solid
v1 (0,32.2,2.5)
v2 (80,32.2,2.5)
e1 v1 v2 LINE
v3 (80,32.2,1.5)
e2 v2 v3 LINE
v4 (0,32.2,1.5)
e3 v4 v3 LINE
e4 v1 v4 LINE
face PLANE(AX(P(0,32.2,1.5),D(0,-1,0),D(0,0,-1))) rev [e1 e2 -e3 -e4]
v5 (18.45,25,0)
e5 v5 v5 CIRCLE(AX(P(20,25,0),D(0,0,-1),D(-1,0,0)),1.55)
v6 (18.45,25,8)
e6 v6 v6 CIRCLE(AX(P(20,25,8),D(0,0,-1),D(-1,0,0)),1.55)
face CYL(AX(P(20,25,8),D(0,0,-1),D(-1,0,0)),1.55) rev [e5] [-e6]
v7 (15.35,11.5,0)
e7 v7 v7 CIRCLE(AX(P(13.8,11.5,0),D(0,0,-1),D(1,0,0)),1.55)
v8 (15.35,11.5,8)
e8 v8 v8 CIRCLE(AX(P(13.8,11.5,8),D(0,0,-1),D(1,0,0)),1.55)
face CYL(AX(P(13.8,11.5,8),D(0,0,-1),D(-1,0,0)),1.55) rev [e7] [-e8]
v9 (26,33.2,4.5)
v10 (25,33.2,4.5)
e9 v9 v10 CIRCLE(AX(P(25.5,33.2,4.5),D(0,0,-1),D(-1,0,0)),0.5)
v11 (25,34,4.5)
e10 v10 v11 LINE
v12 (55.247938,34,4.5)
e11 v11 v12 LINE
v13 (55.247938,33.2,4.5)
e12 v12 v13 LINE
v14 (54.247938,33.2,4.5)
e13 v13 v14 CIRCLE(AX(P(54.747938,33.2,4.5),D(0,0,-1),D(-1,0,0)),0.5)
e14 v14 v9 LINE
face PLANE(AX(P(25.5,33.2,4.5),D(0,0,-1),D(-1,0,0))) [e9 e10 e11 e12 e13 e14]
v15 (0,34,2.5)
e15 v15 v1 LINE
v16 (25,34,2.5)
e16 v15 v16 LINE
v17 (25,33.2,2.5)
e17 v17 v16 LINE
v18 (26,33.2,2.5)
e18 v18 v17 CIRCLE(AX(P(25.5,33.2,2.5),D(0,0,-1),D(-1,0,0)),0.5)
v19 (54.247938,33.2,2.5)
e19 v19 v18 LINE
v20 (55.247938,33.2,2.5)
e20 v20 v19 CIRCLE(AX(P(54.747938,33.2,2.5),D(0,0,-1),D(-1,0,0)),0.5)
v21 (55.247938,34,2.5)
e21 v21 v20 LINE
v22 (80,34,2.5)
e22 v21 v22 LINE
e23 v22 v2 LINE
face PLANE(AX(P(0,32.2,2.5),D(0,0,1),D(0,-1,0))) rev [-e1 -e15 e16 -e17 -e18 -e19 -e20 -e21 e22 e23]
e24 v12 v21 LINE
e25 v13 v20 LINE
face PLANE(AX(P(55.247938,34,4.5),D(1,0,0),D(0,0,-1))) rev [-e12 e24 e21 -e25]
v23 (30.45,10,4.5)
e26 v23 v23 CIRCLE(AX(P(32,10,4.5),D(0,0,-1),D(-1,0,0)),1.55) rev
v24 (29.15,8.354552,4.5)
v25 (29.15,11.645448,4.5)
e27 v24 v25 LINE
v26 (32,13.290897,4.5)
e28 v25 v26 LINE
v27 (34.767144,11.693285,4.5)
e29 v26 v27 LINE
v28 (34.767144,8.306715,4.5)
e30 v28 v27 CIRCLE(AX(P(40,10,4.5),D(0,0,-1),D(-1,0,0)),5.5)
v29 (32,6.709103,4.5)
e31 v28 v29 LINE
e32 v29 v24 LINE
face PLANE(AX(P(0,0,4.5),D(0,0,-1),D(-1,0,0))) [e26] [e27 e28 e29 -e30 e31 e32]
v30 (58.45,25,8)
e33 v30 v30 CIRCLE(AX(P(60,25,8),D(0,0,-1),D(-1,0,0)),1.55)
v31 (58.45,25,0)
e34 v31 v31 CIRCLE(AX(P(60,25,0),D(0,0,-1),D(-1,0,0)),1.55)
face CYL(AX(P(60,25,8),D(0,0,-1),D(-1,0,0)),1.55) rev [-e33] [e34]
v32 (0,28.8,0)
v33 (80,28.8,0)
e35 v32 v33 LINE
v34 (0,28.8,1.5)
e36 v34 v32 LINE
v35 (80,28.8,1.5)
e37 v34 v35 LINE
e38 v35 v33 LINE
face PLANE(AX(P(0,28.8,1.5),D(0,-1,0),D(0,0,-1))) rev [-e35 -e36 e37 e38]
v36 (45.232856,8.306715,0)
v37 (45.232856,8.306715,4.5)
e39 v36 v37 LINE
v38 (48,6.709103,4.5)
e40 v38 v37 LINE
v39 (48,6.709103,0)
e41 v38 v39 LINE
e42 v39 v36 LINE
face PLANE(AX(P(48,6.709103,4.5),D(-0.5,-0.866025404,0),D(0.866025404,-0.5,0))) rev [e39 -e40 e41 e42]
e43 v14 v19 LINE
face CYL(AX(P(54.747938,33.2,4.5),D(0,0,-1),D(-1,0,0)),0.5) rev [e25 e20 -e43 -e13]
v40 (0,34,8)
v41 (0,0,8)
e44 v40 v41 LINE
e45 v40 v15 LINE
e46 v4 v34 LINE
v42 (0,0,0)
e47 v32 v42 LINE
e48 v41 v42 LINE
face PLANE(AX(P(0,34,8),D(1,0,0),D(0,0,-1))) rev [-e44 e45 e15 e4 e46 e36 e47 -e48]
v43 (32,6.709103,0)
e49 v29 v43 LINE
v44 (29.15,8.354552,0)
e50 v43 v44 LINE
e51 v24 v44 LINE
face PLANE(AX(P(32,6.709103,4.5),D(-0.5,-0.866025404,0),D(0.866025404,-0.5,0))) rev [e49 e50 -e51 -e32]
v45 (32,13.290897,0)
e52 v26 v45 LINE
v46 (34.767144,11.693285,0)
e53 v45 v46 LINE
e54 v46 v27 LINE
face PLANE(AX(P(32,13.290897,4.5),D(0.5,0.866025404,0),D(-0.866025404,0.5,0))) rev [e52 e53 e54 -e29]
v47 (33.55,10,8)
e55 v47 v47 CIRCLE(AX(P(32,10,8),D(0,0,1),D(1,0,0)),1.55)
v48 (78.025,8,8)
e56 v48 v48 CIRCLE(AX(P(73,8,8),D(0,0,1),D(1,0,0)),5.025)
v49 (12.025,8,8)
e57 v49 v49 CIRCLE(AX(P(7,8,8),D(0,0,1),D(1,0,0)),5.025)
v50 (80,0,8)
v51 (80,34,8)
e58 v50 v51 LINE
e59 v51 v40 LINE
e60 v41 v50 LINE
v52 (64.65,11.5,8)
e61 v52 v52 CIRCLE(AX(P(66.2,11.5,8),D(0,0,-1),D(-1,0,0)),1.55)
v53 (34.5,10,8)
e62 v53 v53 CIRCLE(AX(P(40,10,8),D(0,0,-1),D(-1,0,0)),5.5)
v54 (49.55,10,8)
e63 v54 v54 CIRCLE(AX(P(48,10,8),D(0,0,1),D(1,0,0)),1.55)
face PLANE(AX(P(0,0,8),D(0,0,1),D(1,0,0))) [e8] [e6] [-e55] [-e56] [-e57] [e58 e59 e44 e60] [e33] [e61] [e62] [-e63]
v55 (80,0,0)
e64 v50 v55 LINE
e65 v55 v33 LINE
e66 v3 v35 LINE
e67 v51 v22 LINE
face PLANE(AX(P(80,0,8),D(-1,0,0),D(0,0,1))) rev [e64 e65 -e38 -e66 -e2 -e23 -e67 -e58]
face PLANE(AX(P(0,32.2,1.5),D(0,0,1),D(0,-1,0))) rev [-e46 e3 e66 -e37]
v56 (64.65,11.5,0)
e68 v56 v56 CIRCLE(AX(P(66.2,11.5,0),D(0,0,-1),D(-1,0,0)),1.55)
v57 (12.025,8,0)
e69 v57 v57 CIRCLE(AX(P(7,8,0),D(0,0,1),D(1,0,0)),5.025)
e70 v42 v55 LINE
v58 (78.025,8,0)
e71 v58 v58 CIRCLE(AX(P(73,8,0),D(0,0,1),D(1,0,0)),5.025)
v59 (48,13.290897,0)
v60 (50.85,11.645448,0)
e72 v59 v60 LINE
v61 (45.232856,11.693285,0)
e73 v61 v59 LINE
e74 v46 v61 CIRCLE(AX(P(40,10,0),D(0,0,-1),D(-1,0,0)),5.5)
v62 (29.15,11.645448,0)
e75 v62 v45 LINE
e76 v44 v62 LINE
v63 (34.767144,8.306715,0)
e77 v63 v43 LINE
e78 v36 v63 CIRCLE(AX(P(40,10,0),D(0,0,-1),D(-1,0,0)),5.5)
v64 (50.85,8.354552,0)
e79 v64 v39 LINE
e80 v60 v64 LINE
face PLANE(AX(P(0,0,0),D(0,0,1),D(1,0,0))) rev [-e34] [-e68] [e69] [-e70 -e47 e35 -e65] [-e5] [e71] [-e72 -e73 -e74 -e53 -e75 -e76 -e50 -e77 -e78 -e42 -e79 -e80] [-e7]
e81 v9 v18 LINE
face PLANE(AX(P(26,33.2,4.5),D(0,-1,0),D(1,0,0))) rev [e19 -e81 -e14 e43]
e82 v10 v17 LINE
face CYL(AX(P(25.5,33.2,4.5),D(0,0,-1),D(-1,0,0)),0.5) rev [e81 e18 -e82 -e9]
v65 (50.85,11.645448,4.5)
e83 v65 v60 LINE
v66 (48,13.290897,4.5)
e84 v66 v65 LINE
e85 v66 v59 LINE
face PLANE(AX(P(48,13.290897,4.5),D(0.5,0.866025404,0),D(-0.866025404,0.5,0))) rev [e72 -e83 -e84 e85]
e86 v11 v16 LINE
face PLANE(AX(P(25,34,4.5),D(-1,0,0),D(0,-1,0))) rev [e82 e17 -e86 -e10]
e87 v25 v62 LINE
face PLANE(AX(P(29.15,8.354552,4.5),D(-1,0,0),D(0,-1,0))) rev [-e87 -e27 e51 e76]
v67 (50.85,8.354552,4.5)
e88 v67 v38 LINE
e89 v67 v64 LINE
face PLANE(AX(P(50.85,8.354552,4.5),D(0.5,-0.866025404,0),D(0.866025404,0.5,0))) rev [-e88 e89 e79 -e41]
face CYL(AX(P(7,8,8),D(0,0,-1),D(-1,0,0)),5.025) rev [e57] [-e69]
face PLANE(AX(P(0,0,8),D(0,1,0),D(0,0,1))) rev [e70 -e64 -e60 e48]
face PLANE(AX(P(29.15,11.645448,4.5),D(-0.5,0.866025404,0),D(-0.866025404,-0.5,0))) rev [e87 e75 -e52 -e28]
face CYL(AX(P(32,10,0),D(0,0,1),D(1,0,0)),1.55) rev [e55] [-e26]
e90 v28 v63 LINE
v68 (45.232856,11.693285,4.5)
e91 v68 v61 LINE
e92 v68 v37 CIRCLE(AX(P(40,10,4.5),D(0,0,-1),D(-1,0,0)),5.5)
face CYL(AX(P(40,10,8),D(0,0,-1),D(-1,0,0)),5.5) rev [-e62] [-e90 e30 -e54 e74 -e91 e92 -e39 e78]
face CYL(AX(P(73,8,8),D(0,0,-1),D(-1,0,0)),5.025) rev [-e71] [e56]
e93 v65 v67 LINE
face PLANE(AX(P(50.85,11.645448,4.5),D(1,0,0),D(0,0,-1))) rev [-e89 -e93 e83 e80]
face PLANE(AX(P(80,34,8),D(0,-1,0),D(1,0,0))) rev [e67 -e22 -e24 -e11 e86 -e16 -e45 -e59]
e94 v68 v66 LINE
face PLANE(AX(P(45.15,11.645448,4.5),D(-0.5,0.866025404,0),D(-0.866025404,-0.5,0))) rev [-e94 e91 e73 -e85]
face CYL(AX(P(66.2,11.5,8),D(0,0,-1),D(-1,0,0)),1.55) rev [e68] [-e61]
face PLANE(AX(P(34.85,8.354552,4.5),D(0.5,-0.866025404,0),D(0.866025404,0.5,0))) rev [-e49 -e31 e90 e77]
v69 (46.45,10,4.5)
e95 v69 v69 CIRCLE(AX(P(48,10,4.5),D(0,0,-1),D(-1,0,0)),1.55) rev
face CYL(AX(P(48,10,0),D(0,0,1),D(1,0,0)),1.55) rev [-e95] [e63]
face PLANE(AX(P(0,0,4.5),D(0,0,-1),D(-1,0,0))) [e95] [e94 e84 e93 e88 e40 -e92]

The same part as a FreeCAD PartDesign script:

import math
import FreeCAD as App
import Part
import Sketcher
from FreeCAD import Vector
Q = App.Units.Quantity

doc = App.newDocument("Part")
body = doc.addObject("PartDesign::Body", "Body")

sketch1 = body.newObject("Sketcher::SketchObject", "Sketch")
sketch1.AttachmentSupport = (doc.getObject("XY_Plane"), [""])
sketch1.MapMode = "FlatFace"
sketch1.addGeometry([
    Part.LineSegment(Vector(0, 34, 0), Vector(0, 0, 0)),
    Part.LineSegment(Vector(0, 0, 0), Vector(80, 0, 0)),
    Part.LineSegment(Vector(80, 0, 0), Vector(80, 34, 0)),
    Part.LineSegment(Vector(80, 34, 0), Vector(0, 34, 0)),
    Part.Circle(Vector(7, 8, 0), Vector(0, 0, 1), 5.025),
    Part.Circle(Vector(73, 8, 0), Vector(0, 0, 1), 5.025),
    Part.Circle(Vector(40, 10, 0), Vector(0, 0, 1), 4.05),
], False)
sketch1.addConstraint([
    Sketcher.Constraint("Coincident", 0, 2, 1, 1),
    Sketcher.Constraint("Coincident", 1, 2, 2, 1),
    Sketcher.Constraint("Coincident", 2, 2, 3, 1),
    Sketcher.Constraint("Coincident", 3, 2, 0, 1),
    Sketcher.Constraint("Vertical", 0),
    Sketcher.Constraint("Horizontal", 1),
    Sketcher.Constraint("Vertical", 2),
    Sketcher.Constraint("Horizontal", 3),
    Sketcher.Constraint("Coincident", 0, 2, -1, 1),
    Sketcher.Constraint("Equal", 4, 5),
    Sketcher.Constraint("Horizontal", 4, 3, 5, 3),
    Sketcher.Constraint("Diameter", 6, 8.1),
    Sketcher.Constraint("Diameter", 4, 10.05),
    Sketcher.Constraint("DistanceX", 1, 1, 1, 2, 80.0),
    Sketcher.Constraint("DistanceY", 0, 2, 0, 1, 34.0),
    Sketcher.Constraint("DistanceX", -1, 1, 4, 3, 7.0),
    Sketcher.Constraint("DistanceY", -1, 1, 4, 3, 8.0),
    Sketcher.Constraint("DistanceX", -1, 1, 5, 3, 73.0),
    Sketcher.Constraint("DistanceX", -1, 1, 6, 3, 40.0),
    Sketcher.Constraint("DistanceY", -1, 1, 6, 3, 10.0),
])
pad1 = body.newObject("PartDesign::Pad", "Pad")
pad1.Profile = sketch1
pad1.Length = 8

sketch2 = body.newObject("Sketcher::SketchObject", "Sketch001")
sketch2.AttachmentSupport = (doc.getObject("YZ_Plane"), [""])
sketch2.MapMode = "FlatFace"
sketch2.AttachmentOffset = App.Placement(Vector(0, 0, 80), App.Rotation())
sketch2.addGeometry([
    Part.LineSegment(Vector(32.2, 2.5, 0), Vector(32.2, 1.5, 0)),
    Part.LineSegment(Vector(32.2, 1.5, 0), Vector(28.8, 1.5, 0)),
    Part.LineSegment(Vector(28.8, 1.5, 0), Vector(28.8, 0, 0)),
    Part.LineSegment(Vector(28.8, 0, 0), Vector(34, 0, 0)),
    Part.LineSegment(Vector(34, 0, 0), Vector(34, 2.5, 0)),
    Part.LineSegment(Vector(34, 2.5, 0), Vector(32.2, 2.5, 0)),
], False)
sketch2.addConstraint([
    Sketcher.Constraint("Coincident", 0, 2, 1, 1),
    Sketcher.Constraint("Coincident", 1, 2, 2, 1),
    Sketcher.Constraint("Coincident", 2, 2, 3, 1),
    Sketcher.Constraint("Coincident", 3, 2, 4, 1),
    Sketcher.Constraint("Coincident", 4, 2, 5, 1),
    Sketcher.Constraint("Coincident", 5, 2, 0, 1),
    Sketcher.Constraint("Vertical", 0),
    Sketcher.Constraint("Horizontal", 1),
    Sketcher.Constraint("Vertical", 2),
    Sketcher.Constraint("Horizontal", 3),
    Sketcher.Constraint("Vertical", 4),
    Sketcher.Constraint("Horizontal", 5),
    Sketcher.Constraint("PointOnObject", 2, 2, -1),
    Sketcher.Constraint("DistanceY", 0, 2, 0, 1, 1.0),
    Sketcher.Constraint("DistanceX", 1, 2, 1, 1, 3.4),
    Sketcher.Constraint("DistanceX", 3, 1, 3, 2, 5.2),
    Sketcher.Constraint("DistanceY", 2, 2, 2, 1, 1.5),
    Sketcher.Constraint("DistanceX", -1, 1, 3, 2, 34.0),
])
pocket1 = body.newObject("PartDesign::Pocket", "Pocket")
pocket1.Profile = sketch2
pocket1.Type = "ThroughAll"

sketch3 = body.newObject("Sketcher::SketchObject", "Sketch002")
sketch3.AttachmentSupport = (doc.getObject("XY_Plane"), [""])
sketch3.MapMode = "FlatFace"
sketch3.AttachmentOffset = App.Placement(Vector(0, 0, 8), App.Rotation())
sketch3.addGeometry([
    Part.Circle(Vector(48, 10, 0), Vector(0, 0, 1), 1.55),
    Part.Circle(Vector(32, 10, 0), Vector(0, 0, 1), 1.55),
], False)
sketch3.addConstraint([
    Sketcher.Constraint("Equal", 0, 1),
    Sketcher.Constraint("Horizontal", 0, 3, 1, 3),
    Sketcher.Constraint("Diameter", 0, 3.1),
    Sketcher.Constraint("DistanceX", -1, 1, 0, 3, 48.0),
    Sketcher.Constraint("DistanceY", -1, 1, 0, 3, 10.0),
    Sketcher.Constraint("DistanceX", -1, 1, 1, 3, 32.0),
])
pocket2 = body.newObject("PartDesign::Pocket", "Pocket001")
pocket2.Profile = sketch3
pocket2.Type = "ThroughAll"

sketch4 = body.newObject("Sketcher::SketchObject", "Sketch003")
sketch4.AttachmentSupport = (doc.getObject("XY_Plane"), [""])
sketch4.MapMode = "FlatFace"
sketch4.addGeometry([
    Part.LineSegment(Vector(45.15, 8.354552, 0), Vector(45.15, 11.645448, 0)),
    Part.LineSegment(Vector(45.15, 11.645448, 0), Vector(48, 13.290897, 0)),
    Part.LineSegment(Vector(48, 13.290897, 0), Vector(50.85, 11.645448, 0)),
    Part.LineSegment(Vector(50.85, 11.645448, 0), Vector(50.85, 8.354552, 0)),
    Part.LineSegment(Vector(50.85, 8.354552, 0), Vector(48, 6.709103, 0)),
    Part.LineSegment(Vector(48, 6.709103, 0), Vector(45.15, 8.354552, 0)),
    Part.LineSegment(Vector(34.85, 8.354552, 0), Vector(32, 6.709103, 0)),
    Part.LineSegment(Vector(32, 6.709103, 0), Vector(29.15, 8.354552, 0)),
    Part.LineSegment(Vector(29.15, 8.354552, 0), Vector(29.15, 11.645448, 0)),
    Part.LineSegment(Vector(29.15, 11.645448, 0), Vector(32, 13.290897, 0)),
    Part.LineSegment(Vector(32, 13.290897, 0), Vector(34.85, 11.645448, 0)),
    Part.LineSegment(Vector(34.85, 11.645448, 0), Vector(34.85, 8.354552, 0)),
], False)
sketch4.addConstraint([
    Sketcher.Constraint("Coincident", 0, 2, 1, 1),
    Sketcher.Constraint("Coincident", 1, 2, 2, 1),
    Sketcher.Constraint("Coincident", 2, 2, 3, 1),
    Sketcher.Constraint("Coincident", 3, 2, 4, 1),
    Sketcher.Constraint("Coincident", 4, 2, 5, 1),
    Sketcher.Constraint("Coincident", 5, 2, 0, 1),
    Sketcher.Constraint("Coincident", 6, 2, 7, 1),
    Sketcher.Constraint("Coincident", 7, 2, 8, 1),
    Sketcher.Constraint("Coincident", 8, 2, 9, 1),
    Sketcher.Constraint("Coincident", 9, 2, 10, 1),
    Sketcher.Constraint("Coincident", 10, 2, 11, 1),
    Sketcher.Constraint("Coincident", 11, 2, 6, 1),
    Sketcher.Constraint("Vertical", 0),
    Sketcher.Constraint("Vertical", 3),
    Sketcher.Constraint("Vertical", 8),
    Sketcher.Constraint("Vertical", 11),
    Sketcher.Constraint("Parallel", 1, 4),
    Sketcher.Constraint("Parallel", 2, 5),
    Sketcher.Constraint("Parallel", 4, 6),
    Sketcher.Constraint("Parallel", 5, 7),
    Sketcher.Constraint("Parallel", 6, 9),
    Sketcher.Constraint("Parallel", 7, 10),
    Sketcher.Constraint("Horizontal", 0, 2, 2, 2),
    Sketcher.Constraint("Horizontal", 3, 2, 5, 2),
    Sketcher.Constraint("Horizontal", 4, 2, 6, 2),
    Sketcher.Constraint("Horizontal", 5, 2, 7, 2),
    Sketcher.Constraint("Horizontal", 2, 2, 8, 2),
    Sketcher.Constraint("Horizontal", 1, 2, 9, 2),
    Sketcher.Constraint("Horizontal", 8, 2, 10, 2),
    Sketcher.Constraint("Vertical", 1, 2, 4, 2),
    Sketcher.Constraint("Angle", 1, Q("30 deg")),
    Sketcher.Constraint("DistanceX", -1, 1, 1, 2, 48.0),
    Sketcher.Constraint("DistanceX", -1, 1, 6, 2, 32.0),
    Sketcher.Constraint("DistanceX", 0, 2, 2, 2, 5.7),
    Sketcher.Constraint("DistanceY", 0, 1, 0, 2, 3.290897),
    Sketcher.Constraint("DistanceY", -1, 1, 0, 2, 11.645448),
])
pocket3 = body.newObject("PartDesign::Pocket", "Pocket002")
pocket3.Profile = sketch4
pocket3.Length = 4.5
pocket3.Reversed = True

sketch5 = body.newObject("Sketcher::SketchObject", "Sketch004")
sketch5.AttachmentSupport = (doc.getObject("XY_Plane"), [""])
sketch5.MapMode = "FlatFace"
sketch5.addGeometry([
    Part.Circle(Vector(60, 25, 0), Vector(0, 0, 1), 1.55),
    Part.Circle(Vector(20, 25, 0), Vector(0, 0, 1), 1.55),
], False)
sketch5.addConstraint([
    Sketcher.Constraint("Equal", 0, 1),
    Sketcher.Constraint("Horizontal", 0, 3, 1, 3),
    Sketcher.Constraint("Diameter", 0, 3.1),
    Sketcher.Constraint("DistanceX", -1, 1, 0, 3, 60.0),
    Sketcher.Constraint("DistanceY", -1, 1, 0, 3, 25.0),
    Sketcher.Constraint("DistanceX", -1, 1, 1, 3, 20.0),
])
pocket4 = body.newObject("PartDesign::Pocket", "Pocket003")
pocket4.Profile = sketch5
pocket4.Type = "ThroughAll"
pocket4.Reversed = True

sketch6 = body.newObject("Sketcher::SketchObject", "Sketch005")
sketch6.AttachmentSupport = (doc.getObject("XY_Plane"), [""])
sketch6.MapMode = "FlatFace"
sketch6.AttachmentOffset = App.Placement(Vector(0, 0, 2.5), App.Rotation())
sketch6.addGeometry([
    Part.LineSegment(Vector(25, 34, 0), Vector(55.247938, 34, 0)),
    Part.LineSegment(Vector(55.247938, 34, 0), Vector(55.247938, 33.2, 0)),
    Part.ArcOfCircle(Part.Circle(Vector(54.747938, 33.2, 0), Vector(0, 0, 1), 0.5), math.radians(180), math.radians(360)),
    Part.LineSegment(Vector(54.247938, 33.2, 0), Vector(26, 33.2, 0)),
    Part.ArcOfCircle(Part.Circle(Vector(25.5, 33.2, 0), Vector(0, 0, 1), 0.5), math.radians(180), math.radians(360)),
    Part.LineSegment(Vector(25, 33.2, 0), Vector(25, 34, 0)),
], False)
sketch6.addConstraint([
    Sketcher.Constraint("Coincident", 0, 2, 1, 1),
    Sketcher.Constraint("Tangent", 1, 2, 2, 2),
    Sketcher.Constraint("Coincident", 2, 1, 3, 1),
    Sketcher.Constraint("Coincident", 3, 2, 4, 2),
    Sketcher.Constraint("Tangent", 4, 1, 5, 1),
    Sketcher.Constraint("Coincident", 5, 2, 0, 1),
    Sketcher.Constraint("Horizontal", 0),
    Sketcher.Constraint("Vertical", 1),
    Sketcher.Constraint("Horizontal", 3),
    Sketcher.Constraint("Vertical", 5),
    Sketcher.Constraint("Equal", 2, 4),
    Sketcher.Constraint("Horizontal", 2, 3, 4, 3),
    Sketcher.Constraint("Horizontal", 1, 2, 2, 1),
    Sketcher.Constraint("Radius", 2, 0.5),
    Sketcher.Constraint("DistanceY", 1, 2, 1, 1, 0.8),
    Sketcher.Constraint("DistanceY", -1, 1, 0, 2, 34.0),
    Sketcher.Constraint("DistanceX", -1, 1, 3, 2, 26.0),
    Sketcher.Constraint("DistanceX", 0, 1, 0, 2, 30.247938),
])
pocket5 = body.newObject("PartDesign::Pocket", "Pocket004")
pocket5.Profile = sketch6
pocket5.Length = 2
pocket5.Reversed = True

sketch7 = body.newObject("Sketcher::SketchObject", "Sketch006")
sketch7.AttachmentSupport = (doc.getObject("XY_Plane"), [""])
sketch7.MapMode = "FlatFace"
sketch7.addGeometry([
    Part.Circle(Vector(66.2, 11.5, 0), Vector(0, 0, 1), 1.55),
    Part.Circle(Vector(13.8, 11.5, 0), Vector(0, 0, 1), 1.55),
], False)
sketch7.addConstraint([
    Sketcher.Constraint("Equal", 0, 1),
    Sketcher.Constraint("Horizontal", 0, 3, 1, 3),
    Sketcher.Constraint("Diameter", 0, 3.1),
    Sketcher.Constraint("DistanceX", -1, 1, 0, 3, 66.2),
    Sketcher.Constraint("DistanceY", -1, 1, 0, 3, 11.5),
    Sketcher.Constraint("DistanceX", -1, 1, 1, 3, 13.8),
])
pocket6 = body.newObject("PartDesign::Pocket", "Pocket005")
pocket6.Profile = sketch7
pocket6.Type = "ThroughAll"
pocket6.Reversed = True

sketch8 = body.newObject("Sketcher::SketchObject", "Sketch007")
sketch8.AttachmentSupport = (doc.getObject("XY_Plane"), [""])
sketch8.MapMode = "FlatFace"
sketch8.addGeometry(Part.Circle(Vector(40, 10, 0), Vector(0, 0, 1), 5.5), False)
sketch8.addConstraint([
    Sketcher.Constraint("Diameter", 0, 11.0),
    Sketcher.Constraint("DistanceX", -1, 1, 0, 3, 40.0),
    Sketcher.Constraint("DistanceY", -1, 1, 0, 3, 10.0),
])
pocket7 = body.newObject("PartDesign::Pocket", "Pocket006")
pocket7.Profile = sketch8
pocket7.Type = "ThroughAll"
pocket7.Reversed = True

doc.recompute()
